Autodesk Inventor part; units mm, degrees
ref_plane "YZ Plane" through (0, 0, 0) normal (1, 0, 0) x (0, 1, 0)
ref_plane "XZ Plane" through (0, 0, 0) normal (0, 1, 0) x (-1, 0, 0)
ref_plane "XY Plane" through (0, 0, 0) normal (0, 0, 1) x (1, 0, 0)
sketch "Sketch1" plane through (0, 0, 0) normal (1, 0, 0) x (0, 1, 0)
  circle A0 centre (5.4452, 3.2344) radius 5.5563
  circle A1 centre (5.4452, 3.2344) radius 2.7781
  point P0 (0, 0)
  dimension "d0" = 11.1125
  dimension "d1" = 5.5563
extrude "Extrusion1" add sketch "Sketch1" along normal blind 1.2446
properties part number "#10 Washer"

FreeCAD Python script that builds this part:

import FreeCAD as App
import Part
import Sketcher
Q = App.Units.Quantity

doc = App.newDocument("Part")
body = doc.addObject("PartDesign::Body", "Body")

sketch1 = doc.addObject("Sketcher::SketchObject", "Sketch")
body.addObject(sketch1)
sketch1.AttachmentSupport = (doc.YZ_Plane, [""])
sketch1.MapMode = "FlatFace"
sketch1.addGeometry([
    Part.Circle(App.Vector(5.4452, 3.2344, 0), App.Vector(0, 0, 1), 5.5563),
    Part.Circle(App.Vector(5.4452, 3.2344, 0), App.Vector(0, 0, 1), 2.7781),
], False)
sketch1.addConstraint([
    Sketcher.Constraint("Coincident", 1, 3, 0, 3),
    Sketcher.Constraint("Diameter", 0, Q("0.4375 in")),
    Sketcher.Constraint("Diameter", 1, Q("0.218748 in")),
    Sketcher.Constraint("DistanceX", -1, 1, 0, 3, Q("5.4452 mm")),
    Sketcher.Constraint("DistanceY", -1, 1, 0, 3, Q("3.2344 mm")),
])
pad1 = doc.addObject("PartDesign::Pad", "Pad")
body.addObject(pad1)
pad1.Profile = sketch1
pad1.Length = Q("0.049 in")

doc.recompute()
